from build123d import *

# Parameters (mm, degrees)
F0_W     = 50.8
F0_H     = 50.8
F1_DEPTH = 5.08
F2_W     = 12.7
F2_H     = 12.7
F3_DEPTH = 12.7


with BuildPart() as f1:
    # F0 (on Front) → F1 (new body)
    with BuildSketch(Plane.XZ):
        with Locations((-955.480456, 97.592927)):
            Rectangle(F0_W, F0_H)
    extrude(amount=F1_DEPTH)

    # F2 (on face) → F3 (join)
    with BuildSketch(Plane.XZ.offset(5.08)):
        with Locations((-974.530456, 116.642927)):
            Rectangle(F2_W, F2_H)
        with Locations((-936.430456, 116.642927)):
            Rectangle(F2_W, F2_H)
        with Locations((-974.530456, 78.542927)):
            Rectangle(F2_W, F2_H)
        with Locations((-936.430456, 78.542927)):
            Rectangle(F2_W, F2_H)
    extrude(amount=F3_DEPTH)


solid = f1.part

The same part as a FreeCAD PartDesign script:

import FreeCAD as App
import Part
import Sketcher

V = App.Vector
Q = App.Units.Quantity


def add_polygon(sketch, points):
    """Adds a closed chain of lines whose ends are joined by coincident constraints."""
    first, n = sketch.GeometryCount, len(points)
    for a, b in zip(points, points[1:] + points[:1]):
        sketch.addGeometry(Part.LineSegment(App.Vector(*a, 0), App.Vector(*b, 0)), False)
    for i in range(n):
        sketch.addConstraint(Sketcher.Constraint("Coincident", first + i, 2, first + (i + 1) % n, 1))

doc = App.newDocument("Part")
body = doc.addObject("PartDesign::Body", "Body")

# Sketch on XZ plane
sketch1 = body.newObject("Sketcher::SketchObject", "Sketch")
sketch1.AttachmentSupport = (doc.getObject("XZ_Plane"), [""])
sketch1.MapMode = "FlatFace"
add_polygon(sketch1, [(-980.880456, 122.992927), (-980.880456, 72.192927), (-930.080456, 72.192927), (-930.080456, 122.992927)])  # lines 0-3
sketch1.addConstraint([
    Sketcher.Constraint("Vertical", 0),
    Sketcher.Constraint("Horizontal", 1),
    Sketcher.Constraint("Vertical", 2),
    Sketcher.Constraint("Horizontal", 3),
    Sketcher.Constraint("Equal", 3, 0),
    Sketcher.Constraint("DistanceX", 1, 1, 1, 2, Q("2 in")),
    Sketcher.Constraint("DistanceX", 0, 2, -1, 1, 980.880456),
    Sketcher.Constraint("DistanceY", -1, 1, 0, 2, 72.192927),
])
pad1 = body.newObject("PartDesign::Pad", "Pad")
pad1.Profile = sketch1
pad1.Length = Q("0.2 in")

# Sketch on XZ plane
sketch2 = body.newObject("Sketcher::SketchObject", "Sketch001")
sketch2.AttachmentSupport = (doc.getObject("XZ_Plane"), [""])
sketch2.MapMode = "FlatFace"
sketch2.AttachmentOffset = App.Placement(V(0, 0, 0.2 * 25.4), App.Rotation())
add_polygon(sketch2, [(-980.880456, 122.992927), (-980.880456, 110.292927), (-968.180456, 110.292927), (-968.180456, 122.992927)])  # lines 0-3
add_polygon(sketch2, [(-942.780456, 122.992927), (-942.780456, 110.292927), (-930.080456, 110.292927), (-930.080456, 122.992927)])  # lines 4-7
add_polygon(sketch2, [(-980.880456, 84.892927), (-980.880456, 72.192927), (-968.180456, 72.192927), (-968.180456, 84.892927)])  # lines 8-11
add_polygon(sketch2, [(-942.780456, 84.892927), (-942.780456, 72.192927), (-930.080456, 72.192927), (-930.080456, 84.892927)])  # lines 12-15
sketch2.addConstraint([
    Sketcher.Constraint("Vertical", 0),
    Sketcher.Constraint("Horizontal", 1),
    Sketcher.Constraint("Vertical", 2),
    Sketcher.Constraint("Horizontal", 3),
    Sketcher.Constraint("Vertical", 4),
    Sketcher.Constraint("Horizontal", 5),
    Sketcher.Constraint("Vertical", 6),
    Sketcher.Constraint("Horizontal", 7),
    Sketcher.Constraint("Vertical", 8),
    Sketcher.Constraint("Horizontal", 9),
    Sketcher.Constraint("Vertical", 10),
    Sketcher.Constraint("Horizontal", 11),
    Sketcher.Constraint("Vertical", 12),
    Sketcher.Constraint("Horizontal", 13),
    Sketcher.Constraint("Vertical", 14),
    Sketcher.Constraint("Horizontal", 15),
    Sketcher.Constraint("Horizontal", 1, 2, 4, 2),
    Sketcher.Constraint("Horizontal", 3, 2, 6, 2),
    Sketcher.Constraint("Horizontal", 9, 2, 12, 2),
    Sketcher.Constraint("Horizontal", 11, 2, 14, 2),
    Sketcher.Constraint("Vertical", 3, 2, 8, 2),
    Sketcher.Constraint("Vertical", 2, 2, 9, 2),
    Sketcher.Constraint("Vertical", 7, 2, 12, 2),
    Sketcher.Constraint("Vertical", 6, 2, 13, 2),
    Sketcher.Constraint("Equal", 3, 5),
    Sketcher.Constraint("Equal", 15, 0),
    Sketcher.Constraint("Equal", 6, 8),
    Sketcher.Constraint("DistanceX", 1, 1, 1, 2, Q("0.5 in")),
    Sketcher.Constraint("DistanceX", 1, 2, 4, 2, Q("1 in")),
    Sketcher.Constraint("DistanceY", 8, 2, 3, 2, Q("2 in")),
    Sketcher.Constraint("DistanceX", 0, 2, -1, 1, 980.880456),
    Sketcher.Constraint("DistanceY", -1, 1, 0, 2, 110.292927),
])
pad2 = body.newObject("PartDesign::Pad", "Pad001")
pad2.Profile = sketch2
pad2.Length = Q("0.5 in")

doc.recompute()
